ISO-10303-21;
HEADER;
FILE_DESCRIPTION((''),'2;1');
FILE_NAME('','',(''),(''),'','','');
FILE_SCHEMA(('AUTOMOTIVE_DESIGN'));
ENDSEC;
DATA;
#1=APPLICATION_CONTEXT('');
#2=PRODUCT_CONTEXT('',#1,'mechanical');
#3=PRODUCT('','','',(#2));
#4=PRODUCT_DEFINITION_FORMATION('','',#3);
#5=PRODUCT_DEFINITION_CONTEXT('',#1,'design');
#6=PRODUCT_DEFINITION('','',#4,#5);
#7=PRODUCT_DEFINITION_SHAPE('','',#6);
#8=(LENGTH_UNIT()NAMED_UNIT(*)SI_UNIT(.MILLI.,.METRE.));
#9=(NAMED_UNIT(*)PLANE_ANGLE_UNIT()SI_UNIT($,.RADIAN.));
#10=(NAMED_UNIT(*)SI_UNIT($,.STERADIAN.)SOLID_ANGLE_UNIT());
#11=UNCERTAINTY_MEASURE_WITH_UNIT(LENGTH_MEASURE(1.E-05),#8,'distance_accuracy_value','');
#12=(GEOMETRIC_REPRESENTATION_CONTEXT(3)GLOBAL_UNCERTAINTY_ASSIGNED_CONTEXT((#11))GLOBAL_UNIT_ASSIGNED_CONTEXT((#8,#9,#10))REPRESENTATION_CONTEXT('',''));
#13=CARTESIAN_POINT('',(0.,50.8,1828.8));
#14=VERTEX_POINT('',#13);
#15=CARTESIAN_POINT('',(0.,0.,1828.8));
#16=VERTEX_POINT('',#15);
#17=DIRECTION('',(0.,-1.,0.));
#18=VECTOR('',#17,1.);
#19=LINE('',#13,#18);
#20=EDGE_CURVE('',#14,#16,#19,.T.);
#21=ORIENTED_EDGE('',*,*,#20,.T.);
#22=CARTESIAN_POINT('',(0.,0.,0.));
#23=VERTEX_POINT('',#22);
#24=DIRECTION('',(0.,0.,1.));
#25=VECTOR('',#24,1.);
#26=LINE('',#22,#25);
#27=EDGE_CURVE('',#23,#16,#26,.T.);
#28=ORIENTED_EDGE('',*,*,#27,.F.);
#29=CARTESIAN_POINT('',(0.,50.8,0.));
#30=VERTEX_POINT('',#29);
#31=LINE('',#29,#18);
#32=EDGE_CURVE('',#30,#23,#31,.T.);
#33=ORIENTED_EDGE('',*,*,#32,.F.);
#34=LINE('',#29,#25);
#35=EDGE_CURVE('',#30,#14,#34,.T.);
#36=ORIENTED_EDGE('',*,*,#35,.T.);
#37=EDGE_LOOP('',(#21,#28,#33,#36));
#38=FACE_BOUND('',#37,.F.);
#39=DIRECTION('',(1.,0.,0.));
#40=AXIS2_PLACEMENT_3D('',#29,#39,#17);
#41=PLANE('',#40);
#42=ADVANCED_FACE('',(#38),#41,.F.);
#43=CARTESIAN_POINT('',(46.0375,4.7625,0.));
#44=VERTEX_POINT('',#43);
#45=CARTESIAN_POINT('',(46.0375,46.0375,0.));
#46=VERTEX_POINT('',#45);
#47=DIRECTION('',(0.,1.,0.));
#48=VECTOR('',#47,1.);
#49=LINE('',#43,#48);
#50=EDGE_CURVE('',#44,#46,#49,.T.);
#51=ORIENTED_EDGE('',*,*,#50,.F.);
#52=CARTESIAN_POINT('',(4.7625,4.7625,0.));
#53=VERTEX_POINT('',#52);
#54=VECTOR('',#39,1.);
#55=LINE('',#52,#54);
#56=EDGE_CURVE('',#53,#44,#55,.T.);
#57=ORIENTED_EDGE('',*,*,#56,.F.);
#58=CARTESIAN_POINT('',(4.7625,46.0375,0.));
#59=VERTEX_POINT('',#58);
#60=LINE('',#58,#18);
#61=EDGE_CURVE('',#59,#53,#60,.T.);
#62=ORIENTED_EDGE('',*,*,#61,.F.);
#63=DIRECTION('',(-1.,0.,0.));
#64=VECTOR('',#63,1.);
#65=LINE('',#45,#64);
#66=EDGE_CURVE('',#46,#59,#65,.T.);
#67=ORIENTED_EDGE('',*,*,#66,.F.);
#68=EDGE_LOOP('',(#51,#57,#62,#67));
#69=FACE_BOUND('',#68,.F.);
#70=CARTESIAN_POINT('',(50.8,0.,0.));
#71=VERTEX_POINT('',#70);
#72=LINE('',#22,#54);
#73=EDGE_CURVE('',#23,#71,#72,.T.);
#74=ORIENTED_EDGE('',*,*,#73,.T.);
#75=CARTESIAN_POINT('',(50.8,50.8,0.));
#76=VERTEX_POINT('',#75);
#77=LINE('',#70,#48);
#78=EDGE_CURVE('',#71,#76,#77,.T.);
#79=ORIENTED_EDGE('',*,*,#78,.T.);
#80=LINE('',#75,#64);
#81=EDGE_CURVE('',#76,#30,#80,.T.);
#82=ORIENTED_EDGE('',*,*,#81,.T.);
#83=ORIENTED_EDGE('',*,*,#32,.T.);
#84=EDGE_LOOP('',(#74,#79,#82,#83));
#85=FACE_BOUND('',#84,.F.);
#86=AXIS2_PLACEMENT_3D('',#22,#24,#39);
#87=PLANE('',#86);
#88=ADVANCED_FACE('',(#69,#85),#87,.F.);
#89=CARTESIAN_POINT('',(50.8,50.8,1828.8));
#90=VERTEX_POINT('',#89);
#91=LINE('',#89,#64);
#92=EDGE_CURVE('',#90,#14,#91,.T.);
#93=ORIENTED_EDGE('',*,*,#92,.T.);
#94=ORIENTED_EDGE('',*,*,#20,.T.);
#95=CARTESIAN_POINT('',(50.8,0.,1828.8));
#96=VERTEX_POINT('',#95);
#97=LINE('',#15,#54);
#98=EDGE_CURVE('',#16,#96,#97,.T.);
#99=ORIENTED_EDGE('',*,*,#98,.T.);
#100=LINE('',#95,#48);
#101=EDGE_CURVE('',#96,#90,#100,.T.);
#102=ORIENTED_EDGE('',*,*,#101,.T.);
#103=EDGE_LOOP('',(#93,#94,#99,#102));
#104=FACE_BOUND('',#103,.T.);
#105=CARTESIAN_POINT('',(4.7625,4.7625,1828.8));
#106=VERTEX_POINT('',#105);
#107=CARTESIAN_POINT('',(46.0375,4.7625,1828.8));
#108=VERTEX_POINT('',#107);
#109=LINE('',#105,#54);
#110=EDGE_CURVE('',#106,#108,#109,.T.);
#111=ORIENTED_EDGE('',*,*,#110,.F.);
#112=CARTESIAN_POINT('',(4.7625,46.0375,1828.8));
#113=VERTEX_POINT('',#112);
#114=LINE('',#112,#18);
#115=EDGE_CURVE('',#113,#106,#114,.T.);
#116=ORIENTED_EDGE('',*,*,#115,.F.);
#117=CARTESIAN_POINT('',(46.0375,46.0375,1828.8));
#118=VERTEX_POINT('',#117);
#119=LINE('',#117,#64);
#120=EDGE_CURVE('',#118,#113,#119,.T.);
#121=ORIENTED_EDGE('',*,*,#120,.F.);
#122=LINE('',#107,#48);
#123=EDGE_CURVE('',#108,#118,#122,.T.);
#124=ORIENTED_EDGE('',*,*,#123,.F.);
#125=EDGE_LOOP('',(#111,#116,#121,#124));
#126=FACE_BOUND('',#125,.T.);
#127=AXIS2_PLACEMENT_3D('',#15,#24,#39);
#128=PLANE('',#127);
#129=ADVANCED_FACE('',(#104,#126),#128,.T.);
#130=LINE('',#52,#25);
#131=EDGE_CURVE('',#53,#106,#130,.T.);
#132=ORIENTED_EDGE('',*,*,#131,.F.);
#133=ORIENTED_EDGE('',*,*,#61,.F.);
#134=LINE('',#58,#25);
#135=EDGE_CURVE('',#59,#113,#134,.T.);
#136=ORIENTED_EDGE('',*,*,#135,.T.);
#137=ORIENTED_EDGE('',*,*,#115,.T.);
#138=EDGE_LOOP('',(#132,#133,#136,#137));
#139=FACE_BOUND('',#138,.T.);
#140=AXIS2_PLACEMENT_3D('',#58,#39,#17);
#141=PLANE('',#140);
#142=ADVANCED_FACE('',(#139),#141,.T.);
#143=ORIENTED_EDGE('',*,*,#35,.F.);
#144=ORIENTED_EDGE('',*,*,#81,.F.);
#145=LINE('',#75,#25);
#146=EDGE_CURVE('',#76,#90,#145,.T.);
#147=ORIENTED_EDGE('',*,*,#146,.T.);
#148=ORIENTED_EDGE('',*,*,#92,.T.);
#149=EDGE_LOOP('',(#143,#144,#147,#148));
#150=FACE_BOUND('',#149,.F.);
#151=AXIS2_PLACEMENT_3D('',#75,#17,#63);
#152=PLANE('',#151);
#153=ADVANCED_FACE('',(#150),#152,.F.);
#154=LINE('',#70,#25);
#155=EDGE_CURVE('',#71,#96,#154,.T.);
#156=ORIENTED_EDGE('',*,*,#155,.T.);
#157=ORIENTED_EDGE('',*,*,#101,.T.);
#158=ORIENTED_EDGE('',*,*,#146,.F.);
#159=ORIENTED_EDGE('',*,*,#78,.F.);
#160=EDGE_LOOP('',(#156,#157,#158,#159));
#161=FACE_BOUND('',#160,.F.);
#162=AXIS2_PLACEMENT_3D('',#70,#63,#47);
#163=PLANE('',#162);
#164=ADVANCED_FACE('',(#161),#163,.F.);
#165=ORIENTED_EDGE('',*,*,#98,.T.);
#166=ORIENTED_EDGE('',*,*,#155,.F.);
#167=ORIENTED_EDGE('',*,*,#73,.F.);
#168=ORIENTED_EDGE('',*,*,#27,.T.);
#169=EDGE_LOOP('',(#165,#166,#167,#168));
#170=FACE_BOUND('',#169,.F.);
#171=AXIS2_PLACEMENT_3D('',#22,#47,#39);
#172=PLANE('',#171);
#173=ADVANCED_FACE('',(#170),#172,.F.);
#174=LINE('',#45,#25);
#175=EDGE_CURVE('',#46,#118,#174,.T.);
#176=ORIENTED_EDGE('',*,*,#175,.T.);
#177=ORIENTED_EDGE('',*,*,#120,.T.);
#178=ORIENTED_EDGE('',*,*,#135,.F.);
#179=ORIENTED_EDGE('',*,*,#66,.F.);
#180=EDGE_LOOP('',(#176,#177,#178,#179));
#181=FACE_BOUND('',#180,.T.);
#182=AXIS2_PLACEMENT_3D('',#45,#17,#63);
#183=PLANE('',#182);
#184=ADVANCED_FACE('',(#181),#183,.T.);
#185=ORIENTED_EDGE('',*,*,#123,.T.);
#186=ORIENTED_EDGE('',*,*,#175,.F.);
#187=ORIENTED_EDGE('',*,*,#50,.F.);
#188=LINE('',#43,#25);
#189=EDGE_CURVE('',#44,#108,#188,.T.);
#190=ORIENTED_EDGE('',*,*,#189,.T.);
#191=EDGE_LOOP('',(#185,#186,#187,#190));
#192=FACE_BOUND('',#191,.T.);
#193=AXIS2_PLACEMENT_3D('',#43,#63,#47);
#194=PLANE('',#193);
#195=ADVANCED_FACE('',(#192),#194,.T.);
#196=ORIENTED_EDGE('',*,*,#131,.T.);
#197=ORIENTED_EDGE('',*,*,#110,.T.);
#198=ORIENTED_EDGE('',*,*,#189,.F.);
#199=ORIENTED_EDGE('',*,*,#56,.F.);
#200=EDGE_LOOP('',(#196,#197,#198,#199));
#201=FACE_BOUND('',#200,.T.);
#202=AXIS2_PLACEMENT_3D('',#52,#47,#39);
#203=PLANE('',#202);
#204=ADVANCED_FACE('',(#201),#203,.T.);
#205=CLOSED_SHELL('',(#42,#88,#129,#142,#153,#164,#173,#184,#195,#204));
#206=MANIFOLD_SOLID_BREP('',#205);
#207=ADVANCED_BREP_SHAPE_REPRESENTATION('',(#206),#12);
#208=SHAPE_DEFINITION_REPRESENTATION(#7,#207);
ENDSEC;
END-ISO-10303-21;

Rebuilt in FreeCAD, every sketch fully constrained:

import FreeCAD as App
import Part
import Sketcher
from FreeCAD import Vector
Q = App.Units.Quantity

doc = App.newDocument("Part")
params = doc.addObject("Spreadsheet::Sheet", "Params")
for row, (alias, value) in enumerate([
    ("sketch1_width", "2 in"),
    ("pad1_length", "72 in"),
], start=1):
    params.set(f"A{row}", alias)
    params.set(f"B{row}", "=" + value)
    params.setAlias(f"B{row}", alias)

body = doc.addObject("PartDesign::Body", "Body")

# Sketch on XY plane
sketch1 = body.newObject("Sketcher::SketchObject", "Sketch")
sketch1.AttachmentSupport = (doc.getObject("XY_Plane"), [""])
sketch1.MapMode = "FlatFace"
sketch1.addGeometry([
    Part.LineSegment(Vector(0, 50.8, 0), Vector(0, 0, 0)),  # 0
    Part.LineSegment(Vector(0, 0, 0), Vector(50.8, 0, 0)),  # 1
    Part.LineSegment(Vector(50.8, 0, 0), Vector(50.8, 50.8, 0)),  # 2
    Part.LineSegment(Vector(50.8, 50.8, 0), Vector(0, 50.8, 0)),  # 3
    Part.LineSegment(Vector(4.7625, 46.0375, 0), Vector(46.0375, 46.0375, 0)),  # 4
    Part.LineSegment(Vector(46.0375, 46.0375, 0), Vector(46.0375, 4.7625, 0)),  # 5
    Part.LineSegment(Vector(46.0375, 4.7625, 0), Vector(4.7625, 4.7625, 0)),  # 6
    Part.LineSegment(Vector(4.7625, 4.7625, 0), Vector(4.7625, 46.0375, 0)),  # 7
], False)
sketch1.addConstraint([
    Sketcher.Constraint("Coincident", 0, 2, 1, 1),
    Sketcher.Constraint("Coincident", 1, 2, 2, 1),
    Sketcher.Constraint("Coincident", 2, 2, 3, 1),
    Sketcher.Constraint("Coincident", 3, 2, 0, 1),
    Sketcher.Constraint("Coincident", 4, 2, 5, 1),
    Sketcher.Constraint("Coincident", 5, 2, 6, 1),
    Sketcher.Constraint("Coincident", 6, 2, 7, 1),
    Sketcher.Constraint("Coincident", 7, 2, 4, 1),
    Sketcher.Constraint("Vertical", 0),
    Sketcher.Constraint("Horizontal", 1),
    Sketcher.Constraint("Vertical", 2),
    Sketcher.Constraint("Horizontal", 3),
    Sketcher.Constraint("Horizontal", 4),
    Sketcher.Constraint("Vertical", 5),
    Sketcher.Constraint("Horizontal", 6),
    Sketcher.Constraint("Vertical", 7),
    Sketcher.Constraint("Coincident", 0, 2, -1, 1),
    Sketcher.Constraint("Equal", 3, 0),
    Sketcher.Constraint("Equal", 6, 5),
    Sketcher.Constraint("DistanceX", 1, 1, 1, 2, Q("2 in")),
    Sketcher.Constraint("DistanceY", -1, 1, 5, 2, Q("0.1875 in")),
    Sketcher.Constraint("DistanceX", -1, 1, 6, 2, Q("0.1875 in")),
    Sketcher.Constraint("DistanceX", 4, 2, 2, 2, Q("0.1875 in")),
])
sketch1.setExpression("Constraints[19]", "Params.sketch1_width")
pad1 = body.newObject("PartDesign::Pad", "Pad")
pad1.Profile = sketch1
pad1.setExpression("Length", "Params.pad1_length")

doc.recompute()
